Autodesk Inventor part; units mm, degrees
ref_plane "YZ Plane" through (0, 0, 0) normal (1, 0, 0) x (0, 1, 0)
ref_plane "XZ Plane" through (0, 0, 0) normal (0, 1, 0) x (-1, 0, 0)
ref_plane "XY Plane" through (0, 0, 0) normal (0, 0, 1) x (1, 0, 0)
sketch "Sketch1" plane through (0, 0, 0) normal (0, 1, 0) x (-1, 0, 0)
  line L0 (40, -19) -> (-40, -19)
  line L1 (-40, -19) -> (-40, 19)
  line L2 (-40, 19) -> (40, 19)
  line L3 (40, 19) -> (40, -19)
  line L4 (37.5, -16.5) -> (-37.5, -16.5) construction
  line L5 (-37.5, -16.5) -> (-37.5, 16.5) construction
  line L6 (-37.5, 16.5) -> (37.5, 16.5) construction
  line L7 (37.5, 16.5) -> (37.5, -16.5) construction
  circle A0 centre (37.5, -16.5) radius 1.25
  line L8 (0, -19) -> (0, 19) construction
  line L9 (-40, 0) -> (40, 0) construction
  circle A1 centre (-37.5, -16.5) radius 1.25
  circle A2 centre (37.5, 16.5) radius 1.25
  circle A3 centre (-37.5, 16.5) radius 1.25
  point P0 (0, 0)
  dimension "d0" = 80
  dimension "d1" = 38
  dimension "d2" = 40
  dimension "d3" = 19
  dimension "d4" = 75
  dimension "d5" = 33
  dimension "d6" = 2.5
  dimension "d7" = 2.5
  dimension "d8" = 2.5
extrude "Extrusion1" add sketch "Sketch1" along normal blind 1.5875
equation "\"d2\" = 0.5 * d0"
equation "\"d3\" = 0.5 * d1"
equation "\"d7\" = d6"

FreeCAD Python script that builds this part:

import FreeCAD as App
import Part
import Sketcher

doc = App.newDocument("Part")
params = doc.addObject("Spreadsheet::Sheet", "Params")
for row, (alias, value) in enumerate([
    ("sketch1_diameter", "2.5 mm"),
    ("sketch1_width", "80 mm"),
    ("sketch1_height", "38 mm"),
    ("pad1_length", "1.5875 mm"),
], start=1):
    params.set(f"A{row}", alias)
    params.set(f"B{row}", "=" + value)
    params.setAlias(f"B{row}", alias)

body = doc.addObject("PartDesign::Body", "Body")

sketch1 = body.newObject("Sketcher::SketchObject", "Sketch")
sketch1.AttachmentSupport = (doc.getObject("XZ_Plane"), [""])
sketch1.MapMode = "FlatFace"
sketch1.addGeometry(Part.LineSegment(App.Vector(40, -19, 0), App.Vector(-40, -19, 0)), False)
sketch1.addGeometry(Part.LineSegment(App.Vector(-40, -19, 0), App.Vector(-40, 19, 0)), False)
sketch1.addGeometry(Part.LineSegment(App.Vector(-40, 19, 0), App.Vector(40, 19, 0)), False)
sketch1.addGeometry(Part.LineSegment(App.Vector(40, 19, 0), App.Vector(40, -19, 0)), False)
sketch1.addGeometry(Part.Circle(App.Vector(37.5, -16.5, 0), App.Vector(0, 0, 1), 1.25), False)
sketch1.addGeometry(Part.Circle(App.Vector(-37.5, -16.5, 0), App.Vector(0, 0, 1), 1.25), False)
sketch1.addGeometry(Part.Circle(App.Vector(37.5, 16.5, 0), App.Vector(0, 0, 1), 1.25), False)
sketch1.addGeometry(Part.Circle(App.Vector(-37.5, 16.5, 0), App.Vector(0, 0, 1), 1.25), False)
sketch1.addConstraint(Sketcher.Constraint("Coincident", 0, 2, 1, 1))
sketch1.addConstraint(Sketcher.Constraint("Coincident", 1, 2, 2, 1))
sketch1.addConstraint(Sketcher.Constraint("Coincident", 2, 2, 3, 1))
sketch1.addConstraint(Sketcher.Constraint("Coincident", 3, 2, 0, 1))
sketch1.addConstraint(Sketcher.Constraint("Horizontal", 0))
sketch1.addConstraint(Sketcher.Constraint("Vertical", 1))
sketch1.addConstraint(Sketcher.Constraint("Horizontal", 2))
sketch1.addConstraint(Sketcher.Constraint("Vertical", 3))
sketch1.addConstraint(Sketcher.Constraint("Equal", 4, 5))
sketch1.addConstraint(Sketcher.Constraint("Equal", 5, 6))
sketch1.addConstraint(Sketcher.Constraint("Equal", 6, 7))
sketch1.addConstraint(Sketcher.Constraint("Symmetric", 5, 3, 6, 3, -1, 1))
sketch1.addConstraint(Sketcher.Constraint("Symmetric", 4, 3, 7, 3, -1, 1))
sketch1.addConstraint(Sketcher.Constraint("Symmetric", 0, 2, 2, 2, -1, 1))
sketch1.addConstraint(Sketcher.Constraint("Symmetric", 4, 3, 5, 3, -2))
sketch1.addConstraint(Sketcher.Constraint("Diameter", 4, 2.5))
sketch1.addConstraint(Sketcher.Constraint("DistanceX", 0, 2, 0, 1, 80.0))
sketch1.addConstraint(Sketcher.Constraint("DistanceY", 1, 1, 1, 2, 38.0))
sketch1.addConstraint(Sketcher.Constraint("DistanceX", 5, 3, 4, 3, 75.0))
sketch1.addConstraint(Sketcher.Constraint("DistanceY", 4, 3, 6, 3, 33.0))
sketch1.setExpression("Constraints[15]", "Params.sketch1_diameter")
sketch1.setExpression("Constraints[16]", "Params.sketch1_width")
sketch1.setExpression("Constraints[17]", "Params.sketch1_height")
pad1 = body.newObject("PartDesign::Pad", "Pad")
pad1.Profile = sketch1
pad1.setExpression("Length", "Params.pad1_length")
pad1.Reversed = True

doc.recompute()
